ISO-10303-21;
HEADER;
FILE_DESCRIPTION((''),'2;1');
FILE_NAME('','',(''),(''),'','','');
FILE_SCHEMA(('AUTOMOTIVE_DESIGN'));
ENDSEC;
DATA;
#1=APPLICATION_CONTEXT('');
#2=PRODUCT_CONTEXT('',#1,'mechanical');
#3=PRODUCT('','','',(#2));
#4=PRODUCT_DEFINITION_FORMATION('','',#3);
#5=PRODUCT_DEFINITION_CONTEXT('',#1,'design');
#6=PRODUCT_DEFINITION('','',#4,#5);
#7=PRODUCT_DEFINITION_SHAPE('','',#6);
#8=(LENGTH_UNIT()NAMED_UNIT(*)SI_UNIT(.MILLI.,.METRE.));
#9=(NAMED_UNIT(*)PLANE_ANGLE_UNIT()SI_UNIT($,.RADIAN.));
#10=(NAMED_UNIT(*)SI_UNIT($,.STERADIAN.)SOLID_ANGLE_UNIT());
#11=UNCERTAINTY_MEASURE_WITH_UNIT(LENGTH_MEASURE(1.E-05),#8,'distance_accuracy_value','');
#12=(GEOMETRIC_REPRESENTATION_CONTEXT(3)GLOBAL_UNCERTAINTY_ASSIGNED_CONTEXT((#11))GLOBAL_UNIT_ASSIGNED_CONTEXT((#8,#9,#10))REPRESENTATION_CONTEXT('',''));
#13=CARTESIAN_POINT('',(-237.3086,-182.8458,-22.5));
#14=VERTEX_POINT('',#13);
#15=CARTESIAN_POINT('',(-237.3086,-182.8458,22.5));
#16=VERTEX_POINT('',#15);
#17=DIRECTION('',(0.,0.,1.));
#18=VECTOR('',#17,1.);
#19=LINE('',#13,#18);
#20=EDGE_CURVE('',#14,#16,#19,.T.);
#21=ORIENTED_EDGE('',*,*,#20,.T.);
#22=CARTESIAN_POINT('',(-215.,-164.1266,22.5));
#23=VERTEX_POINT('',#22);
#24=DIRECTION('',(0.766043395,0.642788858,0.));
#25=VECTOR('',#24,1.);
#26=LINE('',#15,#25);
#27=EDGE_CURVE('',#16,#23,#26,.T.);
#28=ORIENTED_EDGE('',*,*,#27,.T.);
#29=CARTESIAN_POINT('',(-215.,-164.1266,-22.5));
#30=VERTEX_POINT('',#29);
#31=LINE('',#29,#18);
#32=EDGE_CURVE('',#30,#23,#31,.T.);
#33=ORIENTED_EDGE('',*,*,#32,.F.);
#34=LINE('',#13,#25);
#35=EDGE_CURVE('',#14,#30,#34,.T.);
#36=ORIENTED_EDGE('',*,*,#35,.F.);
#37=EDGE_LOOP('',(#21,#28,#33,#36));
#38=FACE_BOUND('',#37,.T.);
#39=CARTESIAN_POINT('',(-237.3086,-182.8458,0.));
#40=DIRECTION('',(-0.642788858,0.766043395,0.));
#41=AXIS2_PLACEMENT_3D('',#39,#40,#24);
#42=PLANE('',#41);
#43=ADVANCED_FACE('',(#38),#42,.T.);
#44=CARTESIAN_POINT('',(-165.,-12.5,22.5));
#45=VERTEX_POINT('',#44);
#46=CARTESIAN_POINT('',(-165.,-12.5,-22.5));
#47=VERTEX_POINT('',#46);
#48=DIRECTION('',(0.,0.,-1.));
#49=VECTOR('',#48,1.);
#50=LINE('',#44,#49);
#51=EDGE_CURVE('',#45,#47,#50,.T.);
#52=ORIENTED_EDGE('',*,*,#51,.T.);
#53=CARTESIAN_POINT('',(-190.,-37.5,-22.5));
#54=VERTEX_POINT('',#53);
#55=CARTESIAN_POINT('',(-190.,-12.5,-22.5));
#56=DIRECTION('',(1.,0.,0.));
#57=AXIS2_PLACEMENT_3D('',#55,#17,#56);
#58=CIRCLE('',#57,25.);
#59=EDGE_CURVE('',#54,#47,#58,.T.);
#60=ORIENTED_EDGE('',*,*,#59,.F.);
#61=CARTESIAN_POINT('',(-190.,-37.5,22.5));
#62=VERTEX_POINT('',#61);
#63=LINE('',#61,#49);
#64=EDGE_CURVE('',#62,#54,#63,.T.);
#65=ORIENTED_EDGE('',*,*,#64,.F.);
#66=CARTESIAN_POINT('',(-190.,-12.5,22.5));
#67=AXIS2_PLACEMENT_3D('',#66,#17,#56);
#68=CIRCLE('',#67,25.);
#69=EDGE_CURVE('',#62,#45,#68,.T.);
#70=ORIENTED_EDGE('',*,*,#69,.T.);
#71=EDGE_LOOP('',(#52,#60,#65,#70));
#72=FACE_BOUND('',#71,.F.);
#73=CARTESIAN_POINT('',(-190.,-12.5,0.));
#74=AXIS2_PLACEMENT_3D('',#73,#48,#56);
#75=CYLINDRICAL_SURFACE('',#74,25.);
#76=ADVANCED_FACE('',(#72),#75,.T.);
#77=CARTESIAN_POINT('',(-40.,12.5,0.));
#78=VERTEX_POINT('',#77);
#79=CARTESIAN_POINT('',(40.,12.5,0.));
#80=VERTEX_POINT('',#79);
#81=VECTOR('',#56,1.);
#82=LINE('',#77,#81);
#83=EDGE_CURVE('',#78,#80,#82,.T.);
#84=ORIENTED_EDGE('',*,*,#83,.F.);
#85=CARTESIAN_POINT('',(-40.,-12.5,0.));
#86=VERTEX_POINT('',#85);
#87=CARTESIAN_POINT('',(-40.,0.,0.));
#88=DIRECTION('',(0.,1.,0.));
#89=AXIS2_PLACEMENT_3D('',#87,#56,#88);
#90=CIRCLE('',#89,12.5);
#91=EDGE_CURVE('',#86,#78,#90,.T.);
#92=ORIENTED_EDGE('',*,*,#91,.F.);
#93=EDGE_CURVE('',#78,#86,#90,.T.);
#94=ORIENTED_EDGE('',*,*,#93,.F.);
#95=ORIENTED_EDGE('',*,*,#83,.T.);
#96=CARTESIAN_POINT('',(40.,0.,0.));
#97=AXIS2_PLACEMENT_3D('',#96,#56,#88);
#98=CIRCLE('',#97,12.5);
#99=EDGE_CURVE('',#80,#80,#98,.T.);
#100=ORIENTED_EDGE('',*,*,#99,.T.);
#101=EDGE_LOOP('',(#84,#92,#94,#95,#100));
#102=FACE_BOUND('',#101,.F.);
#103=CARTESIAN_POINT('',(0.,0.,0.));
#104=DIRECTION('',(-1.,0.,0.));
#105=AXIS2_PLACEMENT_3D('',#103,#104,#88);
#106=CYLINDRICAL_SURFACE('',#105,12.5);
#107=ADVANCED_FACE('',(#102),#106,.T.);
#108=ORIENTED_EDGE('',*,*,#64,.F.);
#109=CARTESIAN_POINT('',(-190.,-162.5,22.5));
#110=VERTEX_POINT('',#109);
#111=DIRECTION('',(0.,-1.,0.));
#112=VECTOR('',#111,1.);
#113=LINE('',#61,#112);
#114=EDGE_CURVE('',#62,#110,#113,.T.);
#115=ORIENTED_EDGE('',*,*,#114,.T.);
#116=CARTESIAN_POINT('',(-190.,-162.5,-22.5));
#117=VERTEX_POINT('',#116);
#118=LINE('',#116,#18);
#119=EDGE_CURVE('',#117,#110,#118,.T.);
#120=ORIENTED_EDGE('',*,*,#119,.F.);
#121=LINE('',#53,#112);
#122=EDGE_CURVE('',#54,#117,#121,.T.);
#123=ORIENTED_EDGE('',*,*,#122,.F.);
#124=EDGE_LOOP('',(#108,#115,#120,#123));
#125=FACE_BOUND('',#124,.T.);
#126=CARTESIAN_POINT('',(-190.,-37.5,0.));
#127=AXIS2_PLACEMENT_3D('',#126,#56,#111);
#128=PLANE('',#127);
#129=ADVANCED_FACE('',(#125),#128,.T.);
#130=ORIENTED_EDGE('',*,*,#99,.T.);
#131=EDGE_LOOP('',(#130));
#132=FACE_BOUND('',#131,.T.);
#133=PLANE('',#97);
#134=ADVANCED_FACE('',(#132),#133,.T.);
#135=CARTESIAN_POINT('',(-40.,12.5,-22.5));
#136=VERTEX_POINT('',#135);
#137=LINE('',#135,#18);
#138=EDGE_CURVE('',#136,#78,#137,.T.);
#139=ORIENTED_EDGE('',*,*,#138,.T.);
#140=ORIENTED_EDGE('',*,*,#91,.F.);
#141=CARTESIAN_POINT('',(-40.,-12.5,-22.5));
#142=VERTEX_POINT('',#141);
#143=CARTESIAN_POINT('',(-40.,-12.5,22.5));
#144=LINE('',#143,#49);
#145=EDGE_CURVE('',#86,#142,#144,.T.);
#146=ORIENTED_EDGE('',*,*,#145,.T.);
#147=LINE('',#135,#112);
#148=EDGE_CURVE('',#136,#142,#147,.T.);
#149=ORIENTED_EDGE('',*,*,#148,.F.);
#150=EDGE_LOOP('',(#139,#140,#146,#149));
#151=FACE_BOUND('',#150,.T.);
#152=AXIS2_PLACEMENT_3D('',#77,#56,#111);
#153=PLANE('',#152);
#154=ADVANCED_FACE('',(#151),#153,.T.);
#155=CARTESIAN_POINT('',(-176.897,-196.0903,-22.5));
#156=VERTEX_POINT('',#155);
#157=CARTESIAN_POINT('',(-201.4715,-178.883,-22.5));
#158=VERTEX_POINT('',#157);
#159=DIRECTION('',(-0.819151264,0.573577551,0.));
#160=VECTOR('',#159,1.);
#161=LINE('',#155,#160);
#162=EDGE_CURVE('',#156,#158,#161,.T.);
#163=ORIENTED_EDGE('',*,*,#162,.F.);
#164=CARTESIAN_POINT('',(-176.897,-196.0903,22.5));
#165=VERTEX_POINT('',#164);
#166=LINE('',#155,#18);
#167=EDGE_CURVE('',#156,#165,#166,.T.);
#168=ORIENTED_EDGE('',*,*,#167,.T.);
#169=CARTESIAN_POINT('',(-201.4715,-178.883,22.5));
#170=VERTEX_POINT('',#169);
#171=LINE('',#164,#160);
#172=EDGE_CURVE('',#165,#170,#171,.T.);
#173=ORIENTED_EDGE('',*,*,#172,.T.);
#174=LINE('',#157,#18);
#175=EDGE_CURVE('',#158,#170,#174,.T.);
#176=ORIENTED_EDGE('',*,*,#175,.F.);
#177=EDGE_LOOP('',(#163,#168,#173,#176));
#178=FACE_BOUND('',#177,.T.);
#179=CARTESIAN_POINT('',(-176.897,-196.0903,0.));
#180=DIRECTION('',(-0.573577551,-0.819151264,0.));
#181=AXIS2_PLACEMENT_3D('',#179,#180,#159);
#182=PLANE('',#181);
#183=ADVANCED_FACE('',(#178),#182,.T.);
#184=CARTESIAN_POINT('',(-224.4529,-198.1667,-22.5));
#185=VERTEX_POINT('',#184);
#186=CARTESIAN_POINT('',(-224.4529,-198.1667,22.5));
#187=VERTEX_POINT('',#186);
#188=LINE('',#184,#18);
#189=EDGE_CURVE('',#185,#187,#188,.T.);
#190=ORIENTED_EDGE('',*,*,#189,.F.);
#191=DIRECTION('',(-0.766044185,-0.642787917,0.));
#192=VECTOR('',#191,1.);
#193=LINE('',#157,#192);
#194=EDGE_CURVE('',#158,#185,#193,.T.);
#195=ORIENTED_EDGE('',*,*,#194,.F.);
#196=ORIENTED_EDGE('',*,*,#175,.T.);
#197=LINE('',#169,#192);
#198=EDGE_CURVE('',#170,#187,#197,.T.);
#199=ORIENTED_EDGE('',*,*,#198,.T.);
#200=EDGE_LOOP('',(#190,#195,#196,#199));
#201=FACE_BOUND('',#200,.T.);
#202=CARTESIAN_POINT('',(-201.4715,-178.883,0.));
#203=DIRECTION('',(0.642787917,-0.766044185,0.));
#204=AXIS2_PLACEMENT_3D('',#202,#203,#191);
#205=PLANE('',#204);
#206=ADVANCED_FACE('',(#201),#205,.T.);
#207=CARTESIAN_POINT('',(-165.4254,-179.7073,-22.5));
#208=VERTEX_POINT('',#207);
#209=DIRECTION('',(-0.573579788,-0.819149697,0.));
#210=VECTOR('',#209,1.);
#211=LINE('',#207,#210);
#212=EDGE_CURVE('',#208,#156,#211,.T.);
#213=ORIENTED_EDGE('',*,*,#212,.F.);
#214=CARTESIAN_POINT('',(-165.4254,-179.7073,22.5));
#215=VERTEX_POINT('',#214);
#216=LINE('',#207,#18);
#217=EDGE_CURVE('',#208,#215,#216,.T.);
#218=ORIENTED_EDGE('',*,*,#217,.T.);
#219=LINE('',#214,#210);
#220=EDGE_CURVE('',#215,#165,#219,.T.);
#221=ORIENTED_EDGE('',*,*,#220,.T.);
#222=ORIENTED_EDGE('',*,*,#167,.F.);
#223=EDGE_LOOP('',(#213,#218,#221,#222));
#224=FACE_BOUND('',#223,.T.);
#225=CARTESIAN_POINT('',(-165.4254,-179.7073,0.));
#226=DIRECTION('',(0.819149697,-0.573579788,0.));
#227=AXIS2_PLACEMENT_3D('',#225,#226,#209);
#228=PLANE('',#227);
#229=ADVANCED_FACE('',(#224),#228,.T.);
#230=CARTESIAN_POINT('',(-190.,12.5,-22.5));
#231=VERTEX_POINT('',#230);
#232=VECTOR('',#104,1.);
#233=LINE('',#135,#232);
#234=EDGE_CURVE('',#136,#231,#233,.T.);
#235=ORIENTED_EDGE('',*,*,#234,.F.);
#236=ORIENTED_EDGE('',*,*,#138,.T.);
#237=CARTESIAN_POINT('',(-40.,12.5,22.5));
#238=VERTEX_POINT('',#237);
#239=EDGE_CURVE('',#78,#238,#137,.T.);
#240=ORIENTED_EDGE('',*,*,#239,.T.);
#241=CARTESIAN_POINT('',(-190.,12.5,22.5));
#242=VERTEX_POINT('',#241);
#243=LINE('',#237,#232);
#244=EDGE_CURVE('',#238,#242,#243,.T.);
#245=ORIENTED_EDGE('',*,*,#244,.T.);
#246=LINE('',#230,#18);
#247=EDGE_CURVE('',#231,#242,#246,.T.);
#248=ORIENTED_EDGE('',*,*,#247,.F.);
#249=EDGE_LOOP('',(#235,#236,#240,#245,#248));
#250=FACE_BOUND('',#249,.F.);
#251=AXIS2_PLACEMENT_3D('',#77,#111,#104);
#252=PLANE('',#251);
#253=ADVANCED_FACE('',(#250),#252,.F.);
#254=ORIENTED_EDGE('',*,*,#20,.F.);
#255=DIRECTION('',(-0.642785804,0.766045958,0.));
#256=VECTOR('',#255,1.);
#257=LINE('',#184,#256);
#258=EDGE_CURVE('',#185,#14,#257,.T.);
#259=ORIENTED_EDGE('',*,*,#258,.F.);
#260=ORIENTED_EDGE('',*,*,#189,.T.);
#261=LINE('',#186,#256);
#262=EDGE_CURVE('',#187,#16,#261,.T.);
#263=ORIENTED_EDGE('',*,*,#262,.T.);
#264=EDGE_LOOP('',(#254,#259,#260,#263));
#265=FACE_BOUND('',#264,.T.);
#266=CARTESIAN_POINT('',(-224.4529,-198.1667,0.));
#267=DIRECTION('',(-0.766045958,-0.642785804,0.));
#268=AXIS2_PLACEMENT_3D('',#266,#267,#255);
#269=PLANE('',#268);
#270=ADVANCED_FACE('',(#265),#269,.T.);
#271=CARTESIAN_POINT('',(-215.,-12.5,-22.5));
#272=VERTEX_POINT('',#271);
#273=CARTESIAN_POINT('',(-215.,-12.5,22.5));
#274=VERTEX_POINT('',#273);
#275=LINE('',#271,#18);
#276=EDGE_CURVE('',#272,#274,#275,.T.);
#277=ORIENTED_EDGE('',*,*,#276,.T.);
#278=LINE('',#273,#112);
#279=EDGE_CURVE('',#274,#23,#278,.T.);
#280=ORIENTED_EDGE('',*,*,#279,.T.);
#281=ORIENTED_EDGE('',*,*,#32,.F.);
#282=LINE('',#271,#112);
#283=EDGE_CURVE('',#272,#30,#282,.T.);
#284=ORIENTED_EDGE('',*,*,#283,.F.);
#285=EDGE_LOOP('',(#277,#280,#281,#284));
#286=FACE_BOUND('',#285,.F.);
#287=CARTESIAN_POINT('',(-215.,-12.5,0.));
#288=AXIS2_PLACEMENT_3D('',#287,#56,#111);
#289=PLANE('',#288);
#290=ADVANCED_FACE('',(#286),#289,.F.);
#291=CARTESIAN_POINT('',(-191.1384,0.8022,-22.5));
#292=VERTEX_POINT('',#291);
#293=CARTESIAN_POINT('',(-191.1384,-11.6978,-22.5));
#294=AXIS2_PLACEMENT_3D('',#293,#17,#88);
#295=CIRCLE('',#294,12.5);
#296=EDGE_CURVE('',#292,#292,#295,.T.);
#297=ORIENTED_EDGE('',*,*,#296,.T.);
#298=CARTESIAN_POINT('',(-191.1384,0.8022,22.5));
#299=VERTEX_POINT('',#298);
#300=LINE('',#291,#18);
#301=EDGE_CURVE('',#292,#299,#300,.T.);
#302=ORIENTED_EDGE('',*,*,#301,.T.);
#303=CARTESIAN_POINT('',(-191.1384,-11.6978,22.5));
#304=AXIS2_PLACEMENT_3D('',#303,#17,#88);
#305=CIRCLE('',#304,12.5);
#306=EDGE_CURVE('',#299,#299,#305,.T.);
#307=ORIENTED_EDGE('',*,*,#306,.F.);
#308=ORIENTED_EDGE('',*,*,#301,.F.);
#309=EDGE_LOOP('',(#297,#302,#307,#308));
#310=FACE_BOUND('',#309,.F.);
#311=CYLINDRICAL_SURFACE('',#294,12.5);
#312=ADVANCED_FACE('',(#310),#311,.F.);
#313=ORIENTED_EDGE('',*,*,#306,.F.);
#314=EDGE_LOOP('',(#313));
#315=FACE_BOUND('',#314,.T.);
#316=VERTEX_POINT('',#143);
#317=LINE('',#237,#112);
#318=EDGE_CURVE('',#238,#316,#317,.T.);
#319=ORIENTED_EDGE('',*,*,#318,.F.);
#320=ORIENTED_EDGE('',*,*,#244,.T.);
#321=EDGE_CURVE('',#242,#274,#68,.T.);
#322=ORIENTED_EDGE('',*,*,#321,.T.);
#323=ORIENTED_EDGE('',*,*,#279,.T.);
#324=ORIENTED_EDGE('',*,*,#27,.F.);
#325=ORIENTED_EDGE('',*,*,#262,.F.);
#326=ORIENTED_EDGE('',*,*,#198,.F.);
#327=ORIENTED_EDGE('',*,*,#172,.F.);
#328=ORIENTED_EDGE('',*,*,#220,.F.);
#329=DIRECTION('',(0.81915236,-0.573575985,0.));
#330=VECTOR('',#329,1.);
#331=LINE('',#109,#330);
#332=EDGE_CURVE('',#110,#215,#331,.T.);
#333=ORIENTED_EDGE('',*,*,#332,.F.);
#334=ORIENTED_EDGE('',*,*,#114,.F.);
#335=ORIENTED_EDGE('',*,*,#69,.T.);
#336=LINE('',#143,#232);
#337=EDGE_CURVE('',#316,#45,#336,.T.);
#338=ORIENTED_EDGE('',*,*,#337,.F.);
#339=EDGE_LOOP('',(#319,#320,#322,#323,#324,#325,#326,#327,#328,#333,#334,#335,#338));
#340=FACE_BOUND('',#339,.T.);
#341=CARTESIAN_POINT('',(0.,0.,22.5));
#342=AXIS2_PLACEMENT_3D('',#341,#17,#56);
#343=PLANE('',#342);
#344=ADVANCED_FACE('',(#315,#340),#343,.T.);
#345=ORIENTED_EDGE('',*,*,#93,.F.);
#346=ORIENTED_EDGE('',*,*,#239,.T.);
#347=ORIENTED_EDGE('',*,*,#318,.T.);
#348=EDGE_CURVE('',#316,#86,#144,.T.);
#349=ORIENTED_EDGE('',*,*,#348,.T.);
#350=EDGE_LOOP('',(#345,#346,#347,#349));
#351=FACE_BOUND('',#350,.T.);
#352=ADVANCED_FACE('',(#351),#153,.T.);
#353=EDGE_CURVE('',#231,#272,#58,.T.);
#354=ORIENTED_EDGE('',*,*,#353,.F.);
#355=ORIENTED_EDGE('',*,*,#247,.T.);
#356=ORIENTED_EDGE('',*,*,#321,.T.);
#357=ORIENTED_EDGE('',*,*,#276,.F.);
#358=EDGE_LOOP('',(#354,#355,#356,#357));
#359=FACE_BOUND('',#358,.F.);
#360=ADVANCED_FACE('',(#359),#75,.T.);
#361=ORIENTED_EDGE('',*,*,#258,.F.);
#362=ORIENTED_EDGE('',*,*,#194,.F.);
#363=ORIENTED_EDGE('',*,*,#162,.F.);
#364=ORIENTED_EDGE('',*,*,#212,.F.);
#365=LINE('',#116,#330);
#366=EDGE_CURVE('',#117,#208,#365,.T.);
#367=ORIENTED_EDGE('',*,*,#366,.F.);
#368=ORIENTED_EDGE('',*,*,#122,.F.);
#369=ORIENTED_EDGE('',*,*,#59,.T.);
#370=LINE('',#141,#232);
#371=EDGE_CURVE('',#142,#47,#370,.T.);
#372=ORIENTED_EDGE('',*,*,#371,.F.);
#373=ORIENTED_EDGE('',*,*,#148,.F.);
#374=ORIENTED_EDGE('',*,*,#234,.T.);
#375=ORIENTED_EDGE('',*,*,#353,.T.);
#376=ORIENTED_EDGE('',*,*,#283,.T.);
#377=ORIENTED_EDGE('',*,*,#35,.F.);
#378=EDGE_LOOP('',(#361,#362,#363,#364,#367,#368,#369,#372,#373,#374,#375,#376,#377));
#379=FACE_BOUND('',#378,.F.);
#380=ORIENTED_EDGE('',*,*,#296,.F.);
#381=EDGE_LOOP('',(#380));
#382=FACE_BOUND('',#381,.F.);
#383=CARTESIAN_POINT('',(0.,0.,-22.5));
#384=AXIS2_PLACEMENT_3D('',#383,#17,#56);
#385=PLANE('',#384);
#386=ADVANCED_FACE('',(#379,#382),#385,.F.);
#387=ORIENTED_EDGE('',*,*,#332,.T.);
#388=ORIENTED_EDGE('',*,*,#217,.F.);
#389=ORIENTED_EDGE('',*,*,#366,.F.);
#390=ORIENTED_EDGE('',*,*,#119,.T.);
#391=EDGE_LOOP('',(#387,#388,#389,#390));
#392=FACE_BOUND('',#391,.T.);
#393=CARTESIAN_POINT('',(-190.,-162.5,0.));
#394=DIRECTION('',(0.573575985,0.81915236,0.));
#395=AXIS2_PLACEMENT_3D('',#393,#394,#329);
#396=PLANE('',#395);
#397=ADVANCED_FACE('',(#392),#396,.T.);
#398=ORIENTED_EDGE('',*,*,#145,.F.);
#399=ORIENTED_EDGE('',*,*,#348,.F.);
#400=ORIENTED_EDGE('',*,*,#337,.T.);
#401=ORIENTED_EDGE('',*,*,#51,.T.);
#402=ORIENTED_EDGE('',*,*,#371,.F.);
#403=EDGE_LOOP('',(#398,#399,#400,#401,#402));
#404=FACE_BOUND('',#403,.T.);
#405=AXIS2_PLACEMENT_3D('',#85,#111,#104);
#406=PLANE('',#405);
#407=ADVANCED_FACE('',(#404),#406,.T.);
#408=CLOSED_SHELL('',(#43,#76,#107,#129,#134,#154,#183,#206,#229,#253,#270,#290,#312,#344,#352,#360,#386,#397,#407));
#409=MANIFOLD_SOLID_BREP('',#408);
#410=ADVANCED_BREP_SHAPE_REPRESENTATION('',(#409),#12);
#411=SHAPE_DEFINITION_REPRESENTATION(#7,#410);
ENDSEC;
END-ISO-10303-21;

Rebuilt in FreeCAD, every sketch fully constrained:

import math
import FreeCAD as App
import Part
import Sketcher
Q = App.Units.Quantity

doc = App.newDocument("Part")
body = doc.addObject("PartDesign::Body", "Body")

# Sketch on YZ plane
sketch1 = doc.addObject("Sketcher::SketchObject", "Sketch")
body.addObject(sketch1)
sketch1.AttachmentSupport = (doc.YZ_Plane, [""])
sketch1.MapMode = "FlatFace"
sketch1.addGeometry(Part.Circle(App.Vector(0, 0, 0), App.Vector(0, 0, 1), 12.5), False)
sketch1.addConstraint([
    Sketcher.Constraint("Coincident", 0, 3, -1, 1),
    Sketcher.Constraint("Diameter", 0, Q("25 mm")),
])
pad1 = doc.addObject("PartDesign::Pad", "Pad")
body.addObject(pad1)
pad1.Profile = sketch1
pad1.Length = 80
pad1.Midplane = True

# Sketch on XY plane
sketch2 = doc.addObject("Sketcher::SketchObject", "Sketch001")
body.addObject(sketch2)
sketch2.AttachmentSupport = (doc.XY_Plane, [""])
sketch2.MapMode = "FlatFace"
sketch2.addGeometry([
    Part.LineSegment(App.Vector(-40, -12.5, 0), App.Vector(-40, 12.5, 0)),  # 0
    Part.LineSegment(App.Vector(-40, 12.5, 0), App.Vector(-190, 12.5, 0)),  # 1
    Part.ArcOfCircle(Part.Circle(App.Vector(-190, -12.5, 0), App.Vector(0, 0, 1), 25), math.radians(90), math.radians(180)),  # 2
    Part.LineSegment(App.Vector(-215, -12.5, 0), App.Vector(-215, -164.1266, 0)),  # 3
    Part.LineSegment(App.Vector(-215, -164.1266, 0), App.Vector(-237.3086, -182.8458, 0)),  # 4
    Part.LineSegment(App.Vector(-237.3086, -182.8458, 0), App.Vector(-224.4529, -198.1667, 0)),  # 5
    Part.LineSegment(App.Vector(-224.4529, -198.1667, 0), App.Vector(-201.4715, -178.883, 0)),  # 6
    Part.LineSegment(App.Vector(-201.4715, -178.883, 0), App.Vector(-176.897, -196.0903, 0)),  # 7
    Part.LineSegment(App.Vector(-176.897, -196.0903, 0), App.Vector(-165.4254, -179.7073, 0)),  # 8
    Part.LineSegment(App.Vector(-165.4254, -179.7073, 0), App.Vector(-190, -162.5, 0)),  # 9
    Part.LineSegment(App.Vector(-190, -162.5, 0), App.Vector(-190, -37.5, 0)),  # 10
    Part.ArcOfCircle(Part.Circle(App.Vector(-190, -12.5, 0), App.Vector(0, 0, 1), 25), math.radians(-90), math.radians(0)),  # 11
    Part.LineSegment(App.Vector(-165, -12.5, 0), App.Vector(-40, -12.5, 0)),  # 12
], False)
sketch2.addConstraint([
    Sketcher.Constraint("Coincident", 0, 2, 1, 1),
    Sketcher.Constraint("Tangent", 1, 2, 2, 1),
    Sketcher.Constraint("Tangent", 2, 2, 3, 1),
    Sketcher.Constraint("Coincident", 3, 2, 4, 1),
    Sketcher.Constraint("Coincident", 4, 2, 5, 1),
    Sketcher.Constraint("Coincident", 5, 2, 6, 1),
    Sketcher.Constraint("Coincident", 6, 2, 7, 1),
    Sketcher.Constraint("Coincident", 7, 2, 8, 1),
    Sketcher.Constraint("Coincident", 8, 2, 9, 1),
    Sketcher.Constraint("Coincident", 9, 2, 10, 1),
    Sketcher.Constraint("Coincident", 10, 2, 11, 1),
    Sketcher.Constraint("Coincident", 11, 2, 12, 1),
    Sketcher.Constraint("Coincident", 12, 2, 0, 1),
    Sketcher.Constraint("Vertical", 0),
    Sketcher.Constraint("Horizontal", 1),
    Sketcher.Constraint("Vertical", 3),
    Sketcher.Constraint("Vertical", 10),
    Sketcher.Constraint("Horizontal", 12),
    Sketcher.Constraint("Coincident", 11, 3, 2, 3),
    Sketcher.Constraint("Equal", 2, 11),
    Sketcher.Constraint("Perpendicular", 4, 5),
    Sketcher.Constraint("Perpendicular", 5, 6),
    Sketcher.Constraint("Perpendicular", 7, 8),
    Sketcher.Constraint("Perpendicular", 8, 9),
    Sketcher.Constraint("Horizontal", 2, 2, 11, 2),
    Sketcher.Constraint("Vertical", 1, 2, 9, 2),
    Sketcher.Constraint("Equal", 12, 10),
    Sketcher.Constraint("Equal", 6, 7),
    Sketcher.Constraint("Equal", 5, 8),
    Sketcher.Constraint("Equal", 7, 9),
    Sketcher.Constraint("DistanceX", 1, 2, 1, 1, Q("150 mm")),
    Sketcher.Constraint("DistanceX", 12, 1, 12, 2, Q("125 mm")),
    Sketcher.Constraint("Angle", 4, Q("-140 deg")),
    Sketcher.Constraint("Angle", 7, Q("-35 deg")),
    Sketcher.Constraint("Distance", 5, Q("20 mm")),
    Sketcher.Constraint("Distance", 6, Q("30 mm")),
    Sketcher.Constraint("DistanceX", 2, 3, -1, 1, Q("190 mm")),
    Sketcher.Constraint("DistanceY", 2, 3, -1, 1, Q("12.5 mm")),
])
pad2 = doc.addObject("PartDesign::Pad", "Pad001")
body.addObject(pad2)
pad2.Profile = sketch2
pad2.Length = 45
pad2.Midplane = True

# Sketch on XY plane
sketch3 = doc.addObject("Sketcher::SketchObject", "Sketch002")
body.addObject(sketch3)
sketch3.AttachmentSupport = (doc.XY_Plane, [""])
sketch3.MapMode = "FlatFace"
sketch3.AttachmentOffset = App.Placement(App.Vector(0, 0, -22.5), App.Rotation())
sketch3.addGeometry(Part.Circle(App.Vector(-191.1384, -11.6978, 0), App.Vector(0, 0, 1), 12.5), False)
sketch3.addConstraint([
    Sketcher.Constraint("Diameter", 0, Q("25 mm")),
    Sketcher.Constraint("DistanceX", 0, 3, -1, 1, Q("191.1384 mm")),
    Sketcher.Constraint("DistanceY", 0, 3, -1, 1, Q("11.6978 mm")),
])
doc.recompute()
hole = doc.addObject("PartDesign::Hole", "Hole")
body.addObject(hole)
hole.Profile = sketch3
hole.ThreadType = "None"
hole.Diameter = 25
hole.DepthType = "Dimension"
hole.Depth = 45
hole.DrillPoint = "Flat"
hole.Reversed = True

doc.recompute()
